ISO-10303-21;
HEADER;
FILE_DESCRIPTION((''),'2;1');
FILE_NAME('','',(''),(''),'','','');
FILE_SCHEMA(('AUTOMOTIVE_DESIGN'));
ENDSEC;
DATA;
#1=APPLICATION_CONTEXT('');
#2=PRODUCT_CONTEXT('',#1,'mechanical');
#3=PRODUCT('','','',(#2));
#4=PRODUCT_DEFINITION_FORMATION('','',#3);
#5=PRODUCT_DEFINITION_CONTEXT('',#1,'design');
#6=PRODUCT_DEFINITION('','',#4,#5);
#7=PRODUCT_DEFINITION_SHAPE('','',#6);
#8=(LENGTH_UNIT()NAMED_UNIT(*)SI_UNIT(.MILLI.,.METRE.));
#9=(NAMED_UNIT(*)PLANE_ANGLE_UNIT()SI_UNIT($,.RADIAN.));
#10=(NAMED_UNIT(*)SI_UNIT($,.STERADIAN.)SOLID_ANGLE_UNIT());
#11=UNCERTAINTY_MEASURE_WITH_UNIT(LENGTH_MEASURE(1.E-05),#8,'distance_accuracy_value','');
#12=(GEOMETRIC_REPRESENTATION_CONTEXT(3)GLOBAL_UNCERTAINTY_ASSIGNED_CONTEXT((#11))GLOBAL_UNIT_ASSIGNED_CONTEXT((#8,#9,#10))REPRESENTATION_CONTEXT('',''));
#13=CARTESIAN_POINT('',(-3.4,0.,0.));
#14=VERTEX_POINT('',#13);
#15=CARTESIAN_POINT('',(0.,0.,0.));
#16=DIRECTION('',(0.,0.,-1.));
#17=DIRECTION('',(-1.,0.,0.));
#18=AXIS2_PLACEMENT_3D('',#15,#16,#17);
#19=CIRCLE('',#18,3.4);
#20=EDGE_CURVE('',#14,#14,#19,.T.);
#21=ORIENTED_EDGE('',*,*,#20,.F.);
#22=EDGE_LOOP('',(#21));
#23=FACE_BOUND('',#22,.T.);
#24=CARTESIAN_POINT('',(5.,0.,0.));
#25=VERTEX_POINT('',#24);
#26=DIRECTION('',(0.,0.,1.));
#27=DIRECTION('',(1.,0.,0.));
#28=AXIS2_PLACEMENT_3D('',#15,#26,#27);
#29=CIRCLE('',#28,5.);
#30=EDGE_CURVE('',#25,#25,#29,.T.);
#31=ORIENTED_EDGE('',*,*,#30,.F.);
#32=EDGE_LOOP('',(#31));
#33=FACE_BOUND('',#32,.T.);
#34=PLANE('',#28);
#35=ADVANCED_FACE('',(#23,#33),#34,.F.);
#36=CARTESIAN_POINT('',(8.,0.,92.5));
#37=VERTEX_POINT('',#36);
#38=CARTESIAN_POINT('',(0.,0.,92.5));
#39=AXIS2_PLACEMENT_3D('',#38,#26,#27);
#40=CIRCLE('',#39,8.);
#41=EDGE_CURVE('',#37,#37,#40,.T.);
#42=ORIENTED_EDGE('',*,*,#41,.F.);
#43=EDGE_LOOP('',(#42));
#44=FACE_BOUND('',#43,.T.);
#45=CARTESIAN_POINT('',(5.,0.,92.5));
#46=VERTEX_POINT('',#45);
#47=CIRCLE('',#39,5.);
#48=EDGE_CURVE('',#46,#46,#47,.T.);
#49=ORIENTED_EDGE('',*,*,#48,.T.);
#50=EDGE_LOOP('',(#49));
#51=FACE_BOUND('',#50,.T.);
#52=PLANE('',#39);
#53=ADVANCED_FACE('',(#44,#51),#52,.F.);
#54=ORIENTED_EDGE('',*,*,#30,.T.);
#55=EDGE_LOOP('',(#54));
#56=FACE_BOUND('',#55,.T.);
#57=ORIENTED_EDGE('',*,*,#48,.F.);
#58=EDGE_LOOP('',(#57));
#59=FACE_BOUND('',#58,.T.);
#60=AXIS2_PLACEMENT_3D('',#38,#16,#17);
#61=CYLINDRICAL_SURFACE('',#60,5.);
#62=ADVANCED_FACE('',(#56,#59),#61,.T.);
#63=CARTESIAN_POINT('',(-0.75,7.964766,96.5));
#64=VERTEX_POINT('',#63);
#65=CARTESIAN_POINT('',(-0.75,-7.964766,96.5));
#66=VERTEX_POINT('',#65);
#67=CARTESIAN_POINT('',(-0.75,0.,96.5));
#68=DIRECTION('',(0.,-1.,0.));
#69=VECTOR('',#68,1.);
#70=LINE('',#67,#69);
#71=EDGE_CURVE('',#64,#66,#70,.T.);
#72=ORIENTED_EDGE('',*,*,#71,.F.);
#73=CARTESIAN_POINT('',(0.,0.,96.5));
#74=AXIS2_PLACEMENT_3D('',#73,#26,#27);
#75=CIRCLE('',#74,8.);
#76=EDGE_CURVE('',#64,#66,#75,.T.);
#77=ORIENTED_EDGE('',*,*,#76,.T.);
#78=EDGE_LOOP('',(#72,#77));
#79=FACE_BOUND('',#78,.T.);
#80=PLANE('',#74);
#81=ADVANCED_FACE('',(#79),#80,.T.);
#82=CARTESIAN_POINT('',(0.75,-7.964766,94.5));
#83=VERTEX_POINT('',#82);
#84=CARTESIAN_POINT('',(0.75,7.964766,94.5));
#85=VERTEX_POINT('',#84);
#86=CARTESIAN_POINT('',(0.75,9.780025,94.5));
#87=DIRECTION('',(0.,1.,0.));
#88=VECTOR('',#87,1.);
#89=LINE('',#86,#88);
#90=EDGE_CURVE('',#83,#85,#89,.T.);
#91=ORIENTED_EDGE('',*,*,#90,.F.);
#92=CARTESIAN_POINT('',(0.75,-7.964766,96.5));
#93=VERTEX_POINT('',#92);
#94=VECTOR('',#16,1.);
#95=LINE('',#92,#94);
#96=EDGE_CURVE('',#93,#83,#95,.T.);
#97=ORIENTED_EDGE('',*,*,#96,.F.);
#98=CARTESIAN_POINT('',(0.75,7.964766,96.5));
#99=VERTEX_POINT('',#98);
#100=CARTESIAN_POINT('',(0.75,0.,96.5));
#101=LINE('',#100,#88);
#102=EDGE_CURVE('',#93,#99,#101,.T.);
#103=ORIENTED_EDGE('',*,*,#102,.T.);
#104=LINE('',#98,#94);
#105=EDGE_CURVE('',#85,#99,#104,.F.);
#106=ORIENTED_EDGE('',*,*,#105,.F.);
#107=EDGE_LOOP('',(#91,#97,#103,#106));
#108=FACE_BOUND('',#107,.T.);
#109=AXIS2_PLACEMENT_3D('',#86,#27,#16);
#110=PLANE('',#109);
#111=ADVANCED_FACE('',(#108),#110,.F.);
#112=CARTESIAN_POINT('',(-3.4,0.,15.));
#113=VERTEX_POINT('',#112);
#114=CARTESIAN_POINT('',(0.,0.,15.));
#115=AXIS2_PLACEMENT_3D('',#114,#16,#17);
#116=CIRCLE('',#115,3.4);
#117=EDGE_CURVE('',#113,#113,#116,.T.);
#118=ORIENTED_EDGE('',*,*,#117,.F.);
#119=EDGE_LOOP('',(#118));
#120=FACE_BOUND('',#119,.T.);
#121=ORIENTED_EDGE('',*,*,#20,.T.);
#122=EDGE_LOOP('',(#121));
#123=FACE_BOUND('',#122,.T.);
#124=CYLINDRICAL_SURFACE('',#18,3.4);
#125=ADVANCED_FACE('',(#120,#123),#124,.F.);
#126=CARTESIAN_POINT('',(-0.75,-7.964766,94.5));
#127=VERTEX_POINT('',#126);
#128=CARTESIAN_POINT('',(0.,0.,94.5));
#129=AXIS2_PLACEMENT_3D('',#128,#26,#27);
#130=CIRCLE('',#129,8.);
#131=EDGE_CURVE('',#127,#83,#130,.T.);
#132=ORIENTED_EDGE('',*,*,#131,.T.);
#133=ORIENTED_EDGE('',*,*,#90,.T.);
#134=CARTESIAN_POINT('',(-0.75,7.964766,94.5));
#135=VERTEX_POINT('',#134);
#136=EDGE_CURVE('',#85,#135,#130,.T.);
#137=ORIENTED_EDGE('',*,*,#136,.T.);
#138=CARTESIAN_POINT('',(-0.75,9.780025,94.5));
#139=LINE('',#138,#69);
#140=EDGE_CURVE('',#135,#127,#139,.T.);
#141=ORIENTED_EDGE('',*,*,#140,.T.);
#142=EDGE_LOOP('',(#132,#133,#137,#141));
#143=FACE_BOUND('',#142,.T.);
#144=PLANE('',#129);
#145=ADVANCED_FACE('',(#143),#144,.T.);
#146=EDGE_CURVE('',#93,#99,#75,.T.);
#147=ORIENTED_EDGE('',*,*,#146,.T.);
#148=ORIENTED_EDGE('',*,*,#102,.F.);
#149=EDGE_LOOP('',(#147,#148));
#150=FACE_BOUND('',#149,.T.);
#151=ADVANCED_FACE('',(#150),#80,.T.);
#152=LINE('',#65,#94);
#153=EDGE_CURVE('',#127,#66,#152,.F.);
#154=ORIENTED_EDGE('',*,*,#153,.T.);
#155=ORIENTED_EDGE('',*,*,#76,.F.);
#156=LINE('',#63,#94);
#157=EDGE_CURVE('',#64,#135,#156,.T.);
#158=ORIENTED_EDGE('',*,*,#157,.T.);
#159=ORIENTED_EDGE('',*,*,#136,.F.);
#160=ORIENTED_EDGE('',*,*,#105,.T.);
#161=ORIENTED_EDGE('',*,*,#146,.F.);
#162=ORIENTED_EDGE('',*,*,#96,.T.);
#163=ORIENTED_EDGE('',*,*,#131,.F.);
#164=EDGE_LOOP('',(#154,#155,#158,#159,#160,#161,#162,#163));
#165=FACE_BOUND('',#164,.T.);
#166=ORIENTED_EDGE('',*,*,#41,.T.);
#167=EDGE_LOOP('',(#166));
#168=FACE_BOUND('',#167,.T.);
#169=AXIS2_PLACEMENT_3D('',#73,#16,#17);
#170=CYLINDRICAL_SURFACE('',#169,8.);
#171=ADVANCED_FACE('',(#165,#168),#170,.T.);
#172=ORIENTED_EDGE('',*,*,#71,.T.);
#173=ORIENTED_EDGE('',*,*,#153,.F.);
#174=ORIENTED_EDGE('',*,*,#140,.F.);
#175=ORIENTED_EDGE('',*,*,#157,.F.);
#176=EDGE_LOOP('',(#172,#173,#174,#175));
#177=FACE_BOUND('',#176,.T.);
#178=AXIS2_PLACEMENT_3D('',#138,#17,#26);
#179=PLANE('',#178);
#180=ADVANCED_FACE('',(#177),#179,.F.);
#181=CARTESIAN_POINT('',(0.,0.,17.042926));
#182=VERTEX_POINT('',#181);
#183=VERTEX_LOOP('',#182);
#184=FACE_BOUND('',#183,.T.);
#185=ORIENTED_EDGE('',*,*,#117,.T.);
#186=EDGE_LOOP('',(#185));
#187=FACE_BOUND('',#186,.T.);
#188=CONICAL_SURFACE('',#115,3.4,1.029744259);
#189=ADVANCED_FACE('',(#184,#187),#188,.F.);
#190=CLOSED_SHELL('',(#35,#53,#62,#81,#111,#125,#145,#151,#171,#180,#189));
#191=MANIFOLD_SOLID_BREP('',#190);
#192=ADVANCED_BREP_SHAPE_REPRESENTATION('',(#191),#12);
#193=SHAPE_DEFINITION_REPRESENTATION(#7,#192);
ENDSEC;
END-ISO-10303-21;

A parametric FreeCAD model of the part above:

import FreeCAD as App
import Part
import Sketcher

V = App.Vector
Q = App.Units.Quantity


def add_polygon(sketch, points):
    """Adds a closed chain of lines whose ends are joined by coincident constraints."""
    first, n = sketch.GeometryCount, len(points)
    for a, b in zip(points, points[1:] + points[:1]):
        sketch.addGeometry(Part.LineSegment(App.Vector(*a, 0), App.Vector(*b, 0)), False)
    for i in range(n):
        sketch.addConstraint(Sketcher.Constraint("Coincident", first + i, 2, first + (i + 1) % n, 1))

doc = App.newDocument("Part")
body = doc.addObject("PartDesign::Body", "Body")

# Sketch on XY plane
sketch1 = doc.addObject("Sketcher::SketchObject", "Sketch")
body.addObject(sketch1)
sketch1.AttachmentSupport = (doc.XY_Plane, [""])
sketch1.MapMode = "FlatFace"
sketch1.addGeometry(Part.Circle(V(0, 0, 0), V(0, 0, 1), 5), False)
sketch1.addConstraint([
    Sketcher.Constraint("Coincident", 0, 3, -1, 1),
    Sketcher.Constraint("Diameter", 0, Q("10 mm")),
])
pad1 = doc.addObject("PartDesign::Pad", "Pad")
body.addObject(pad1)
pad1.Profile = sketch1
pad1.Length = 92.5

# Sketch on XY plane
sketch2 = doc.addObject("Sketcher::SketchObject", "Sketch001")
body.addObject(sketch2)
sketch2.AttachmentSupport = (doc.XY_Plane, [""])
sketch2.MapMode = "FlatFace"
sketch2.AttachmentOffset = App.Placement(V(0, 0, 92.5), App.Rotation())
sketch2.addGeometry(Part.Circle(V(0, 0, 0), V(0, 0, 1), 8), False)
sketch2.addConstraint([
    Sketcher.Constraint("Coincident", 0, 3, -1, 1),
    Sketcher.Constraint("Diameter", 0, Q("16 mm")),
])
pad2 = doc.addObject("PartDesign::Pad", "Pad001")
body.addObject(pad2)
pad2.Profile = sketch2
pad2.Length = 4

# Sketch on XY plane
sketch3 = doc.addObject("Sketcher::SketchObject", "Sketch002")
body.addObject(sketch3)
sketch3.AttachmentSupport = (doc.XY_Plane, [""])
sketch3.MapMode = "FlatFace"
sketch3.AttachmentOffset = App.Placement(V(0, 0, 96.5), App.Rotation())
add_polygon(sketch3, [(-0.75, 9.780025), (-0.75, -9.780025), (0.75, -9.780025), (0.75, 9.780025)])  # lines 0-3
sketch3.addConstraint([
    Sketcher.Constraint("Vertical", 0),
    Sketcher.Constraint("Horizontal", 1),
    Sketcher.Constraint("Vertical", 2),
    Sketcher.Constraint("Horizontal", 3),
    Sketcher.Constraint("Symmetric", 0, 2, 2, 2, -1, 1),
    Sketcher.Constraint("DistanceX", 1, 1, 1, 2, Q("1.5 mm")),
    Sketcher.Constraint("DistanceY", 0, 2, 0, 1, Q("19.56005 mm")),
])
pocket1 = doc.addObject("PartDesign::Pocket", "Pocket")
body.addObject(pocket1)
pocket1.Profile = sketch3
pocket1.Length = 2

# Sketch on XY plane
sketch4 = doc.addObject("Sketcher::SketchObject", "Sketch003")
body.addObject(sketch4)
sketch4.AttachmentSupport = (doc.XY_Plane, [""])
sketch4.MapMode = "FlatFace"
sketch4.addGeometry(Part.Circle(V(0, 0, 0), V(0, 0, 1), 3.4), False)
sketch4.addConstraint([
    Sketcher.Constraint("Coincident", 0, 3, -1, 1),
    Sketcher.Constraint("Diameter", 0, Q("6.8 mm")),
])
doc.recompute()
hole = doc.addObject("PartDesign::Hole", "Hole")
body.addObject(hole)
hole.Profile = sketch4
hole.ThreadType = "None"
hole.Diameter = 6.8
hole.DepthType = "Dimension"
hole.Depth = 15
hole.DrillPoint = "Angled"
hole.DrillPointAngle = 118
hole.Reversed = True

doc.recompute()
